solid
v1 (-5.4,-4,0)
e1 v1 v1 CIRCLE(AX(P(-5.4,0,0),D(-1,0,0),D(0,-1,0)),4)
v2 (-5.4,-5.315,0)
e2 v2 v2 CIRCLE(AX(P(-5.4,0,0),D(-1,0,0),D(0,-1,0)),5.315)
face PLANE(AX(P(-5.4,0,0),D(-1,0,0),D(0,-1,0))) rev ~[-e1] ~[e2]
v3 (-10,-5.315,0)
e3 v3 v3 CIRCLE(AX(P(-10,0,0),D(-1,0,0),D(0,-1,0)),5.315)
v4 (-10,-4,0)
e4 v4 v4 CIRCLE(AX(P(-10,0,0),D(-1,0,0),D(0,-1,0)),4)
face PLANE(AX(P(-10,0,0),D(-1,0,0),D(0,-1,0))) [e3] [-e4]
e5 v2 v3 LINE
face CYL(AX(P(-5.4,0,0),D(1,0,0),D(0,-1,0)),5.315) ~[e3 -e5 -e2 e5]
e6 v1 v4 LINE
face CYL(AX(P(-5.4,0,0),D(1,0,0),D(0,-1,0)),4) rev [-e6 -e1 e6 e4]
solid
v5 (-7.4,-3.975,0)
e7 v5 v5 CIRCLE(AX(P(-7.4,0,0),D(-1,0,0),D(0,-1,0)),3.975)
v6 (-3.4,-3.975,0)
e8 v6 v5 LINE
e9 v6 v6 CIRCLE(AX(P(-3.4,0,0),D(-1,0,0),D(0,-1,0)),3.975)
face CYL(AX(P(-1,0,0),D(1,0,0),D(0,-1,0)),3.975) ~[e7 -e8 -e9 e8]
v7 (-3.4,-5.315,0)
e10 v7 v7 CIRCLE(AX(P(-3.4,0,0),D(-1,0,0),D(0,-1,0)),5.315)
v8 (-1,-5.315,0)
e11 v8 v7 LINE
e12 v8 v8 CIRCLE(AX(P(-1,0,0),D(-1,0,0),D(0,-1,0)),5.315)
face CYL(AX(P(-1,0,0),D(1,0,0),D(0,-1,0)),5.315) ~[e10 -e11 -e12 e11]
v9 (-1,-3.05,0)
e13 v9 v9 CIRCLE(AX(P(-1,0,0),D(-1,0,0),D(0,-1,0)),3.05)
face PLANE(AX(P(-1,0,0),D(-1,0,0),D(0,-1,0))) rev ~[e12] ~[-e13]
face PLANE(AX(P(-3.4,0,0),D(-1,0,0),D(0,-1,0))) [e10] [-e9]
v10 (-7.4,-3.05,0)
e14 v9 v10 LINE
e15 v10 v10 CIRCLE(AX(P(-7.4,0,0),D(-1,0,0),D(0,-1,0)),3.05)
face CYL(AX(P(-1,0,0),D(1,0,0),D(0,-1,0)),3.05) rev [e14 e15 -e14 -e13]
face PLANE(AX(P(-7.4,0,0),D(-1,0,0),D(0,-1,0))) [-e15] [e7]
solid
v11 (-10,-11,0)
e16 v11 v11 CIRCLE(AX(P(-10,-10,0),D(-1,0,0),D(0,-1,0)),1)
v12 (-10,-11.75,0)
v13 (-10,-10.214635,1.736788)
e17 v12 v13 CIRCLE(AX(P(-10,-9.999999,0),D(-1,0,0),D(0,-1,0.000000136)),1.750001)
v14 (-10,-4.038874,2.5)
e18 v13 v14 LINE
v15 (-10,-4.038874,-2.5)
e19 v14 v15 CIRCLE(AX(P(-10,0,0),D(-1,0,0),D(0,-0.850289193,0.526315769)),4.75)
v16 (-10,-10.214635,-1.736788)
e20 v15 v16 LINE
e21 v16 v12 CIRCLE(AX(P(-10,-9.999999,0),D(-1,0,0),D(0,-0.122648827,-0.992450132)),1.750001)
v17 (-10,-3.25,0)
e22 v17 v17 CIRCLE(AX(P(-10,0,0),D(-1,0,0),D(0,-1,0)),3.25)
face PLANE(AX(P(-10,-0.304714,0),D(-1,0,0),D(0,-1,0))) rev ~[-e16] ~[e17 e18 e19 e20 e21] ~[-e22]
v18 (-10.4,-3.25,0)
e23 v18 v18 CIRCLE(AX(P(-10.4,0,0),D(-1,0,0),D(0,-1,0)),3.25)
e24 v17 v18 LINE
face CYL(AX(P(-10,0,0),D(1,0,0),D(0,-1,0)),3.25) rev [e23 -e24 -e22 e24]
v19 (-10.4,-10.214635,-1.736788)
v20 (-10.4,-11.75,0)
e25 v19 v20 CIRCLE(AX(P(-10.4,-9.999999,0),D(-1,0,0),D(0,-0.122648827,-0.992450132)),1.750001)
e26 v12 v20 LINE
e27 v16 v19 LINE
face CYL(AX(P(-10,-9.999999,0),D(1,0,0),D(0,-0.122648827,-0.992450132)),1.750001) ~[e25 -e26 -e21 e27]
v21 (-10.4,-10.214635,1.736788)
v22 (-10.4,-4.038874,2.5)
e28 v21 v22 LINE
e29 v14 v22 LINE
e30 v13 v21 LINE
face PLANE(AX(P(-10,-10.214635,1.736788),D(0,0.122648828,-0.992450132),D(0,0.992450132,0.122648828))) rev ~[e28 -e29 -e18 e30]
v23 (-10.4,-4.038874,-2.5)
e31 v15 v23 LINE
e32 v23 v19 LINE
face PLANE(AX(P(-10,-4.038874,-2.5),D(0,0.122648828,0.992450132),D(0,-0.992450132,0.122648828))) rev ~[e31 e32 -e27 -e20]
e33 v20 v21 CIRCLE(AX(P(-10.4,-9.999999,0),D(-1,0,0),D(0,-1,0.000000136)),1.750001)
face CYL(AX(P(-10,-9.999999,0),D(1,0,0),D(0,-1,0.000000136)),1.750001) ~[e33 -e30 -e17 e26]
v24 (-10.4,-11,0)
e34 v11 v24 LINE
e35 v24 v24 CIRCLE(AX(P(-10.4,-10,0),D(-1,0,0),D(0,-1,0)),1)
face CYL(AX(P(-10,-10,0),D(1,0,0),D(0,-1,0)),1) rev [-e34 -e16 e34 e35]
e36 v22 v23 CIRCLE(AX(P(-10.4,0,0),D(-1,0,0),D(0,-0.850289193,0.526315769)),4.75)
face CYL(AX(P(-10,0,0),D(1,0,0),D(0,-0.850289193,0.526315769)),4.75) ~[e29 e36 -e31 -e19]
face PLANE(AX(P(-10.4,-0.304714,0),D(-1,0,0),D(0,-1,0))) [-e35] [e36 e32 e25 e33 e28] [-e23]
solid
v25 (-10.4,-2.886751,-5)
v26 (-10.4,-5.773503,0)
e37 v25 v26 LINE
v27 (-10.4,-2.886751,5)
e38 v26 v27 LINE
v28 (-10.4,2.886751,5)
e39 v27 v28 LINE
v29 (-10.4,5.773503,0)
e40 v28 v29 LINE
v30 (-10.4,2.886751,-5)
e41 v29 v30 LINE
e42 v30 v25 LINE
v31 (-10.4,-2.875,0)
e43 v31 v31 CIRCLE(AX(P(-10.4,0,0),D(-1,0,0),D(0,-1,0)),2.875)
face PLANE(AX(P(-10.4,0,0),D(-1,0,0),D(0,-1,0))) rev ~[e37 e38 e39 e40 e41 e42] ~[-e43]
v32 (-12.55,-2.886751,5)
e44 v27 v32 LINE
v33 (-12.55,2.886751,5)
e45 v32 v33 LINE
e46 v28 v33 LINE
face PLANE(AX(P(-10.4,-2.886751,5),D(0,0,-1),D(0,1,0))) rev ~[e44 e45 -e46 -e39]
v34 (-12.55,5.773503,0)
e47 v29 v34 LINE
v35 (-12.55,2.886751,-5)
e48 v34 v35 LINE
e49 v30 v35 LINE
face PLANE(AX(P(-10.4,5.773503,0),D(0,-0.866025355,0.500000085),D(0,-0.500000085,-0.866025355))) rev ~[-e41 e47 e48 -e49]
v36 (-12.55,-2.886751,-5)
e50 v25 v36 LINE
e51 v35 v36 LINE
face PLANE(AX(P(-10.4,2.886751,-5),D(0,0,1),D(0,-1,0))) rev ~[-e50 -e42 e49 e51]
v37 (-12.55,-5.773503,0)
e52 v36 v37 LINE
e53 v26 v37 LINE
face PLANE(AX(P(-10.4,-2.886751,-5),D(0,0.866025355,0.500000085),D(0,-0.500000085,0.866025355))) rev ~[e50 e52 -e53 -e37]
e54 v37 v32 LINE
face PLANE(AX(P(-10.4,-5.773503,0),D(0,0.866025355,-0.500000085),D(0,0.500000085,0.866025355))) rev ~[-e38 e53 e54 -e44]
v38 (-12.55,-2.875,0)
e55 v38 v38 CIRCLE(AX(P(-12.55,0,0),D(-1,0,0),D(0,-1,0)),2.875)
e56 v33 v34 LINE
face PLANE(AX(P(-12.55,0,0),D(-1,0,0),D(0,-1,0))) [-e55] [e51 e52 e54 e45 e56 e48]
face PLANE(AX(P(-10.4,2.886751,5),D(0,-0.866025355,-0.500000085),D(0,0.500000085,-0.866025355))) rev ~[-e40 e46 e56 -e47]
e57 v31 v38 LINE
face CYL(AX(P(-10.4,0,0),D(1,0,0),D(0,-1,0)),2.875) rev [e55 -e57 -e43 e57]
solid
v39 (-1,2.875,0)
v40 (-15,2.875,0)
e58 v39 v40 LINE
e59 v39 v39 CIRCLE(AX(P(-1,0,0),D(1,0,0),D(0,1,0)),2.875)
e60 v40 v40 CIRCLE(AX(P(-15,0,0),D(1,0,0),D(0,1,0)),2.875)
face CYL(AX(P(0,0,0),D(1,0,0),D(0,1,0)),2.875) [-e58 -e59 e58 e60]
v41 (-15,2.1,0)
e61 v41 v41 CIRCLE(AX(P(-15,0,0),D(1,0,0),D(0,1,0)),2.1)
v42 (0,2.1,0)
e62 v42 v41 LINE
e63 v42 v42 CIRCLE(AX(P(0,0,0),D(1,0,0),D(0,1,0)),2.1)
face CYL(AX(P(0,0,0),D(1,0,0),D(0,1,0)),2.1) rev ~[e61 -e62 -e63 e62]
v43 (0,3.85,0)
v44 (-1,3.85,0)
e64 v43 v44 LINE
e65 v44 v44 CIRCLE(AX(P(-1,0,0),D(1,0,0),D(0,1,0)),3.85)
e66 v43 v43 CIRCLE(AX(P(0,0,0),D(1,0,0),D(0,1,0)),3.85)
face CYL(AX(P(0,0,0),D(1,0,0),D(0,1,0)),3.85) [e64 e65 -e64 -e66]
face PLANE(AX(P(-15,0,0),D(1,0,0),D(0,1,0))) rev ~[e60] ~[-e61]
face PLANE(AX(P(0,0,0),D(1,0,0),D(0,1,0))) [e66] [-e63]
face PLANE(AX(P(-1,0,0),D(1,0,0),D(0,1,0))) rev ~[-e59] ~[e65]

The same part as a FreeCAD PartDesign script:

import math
import FreeCAD as App
import Part
import Sketcher
Q = App.Units.Quantity

doc = App.newDocument("Part")
body = doc.addObject("PartDesign::Body", "Body")

# Sketch on YZ plane
sketch1 = body.newObject("Sketcher::SketchObject", "Sketch")
sketch1.AttachmentSupport = (doc.getObject("YZ_Plane"), [""])
sketch1.MapMode = "FlatFace"
sketch1.addGeometry([
    Part.Circle(App.Vector(0, 0, 0), App.Vector(0, 0, 1), 2.9),
    Part.Circle(App.Vector(0, 0, 0), App.Vector(0, 0, 1), 2.1),
], False)
sketch1.addConstraint([
    Sketcher.Constraint("Coincident", 0, 3, -1, 1),
    Sketcher.Constraint("Coincident", 1, 3, -1, 1),
    Sketcher.Constraint("Diameter", 1, Q("4.2 mm")),
    Sketcher.Constraint("Diameter", 0, Q("5.75 mm")),
])
pad1 = body.newObject("PartDesign::Pad", "Pad")
pad1.Profile = sketch1
pad1.Length = 15
pad1.Reversed = True

# Sketch on YZ plane
sketch2 = body.newObject("Sketcher::SketchObject", "Sketch001")
sketch2.AttachmentSupport = (doc.getObject("YZ_Plane"), [""])
sketch2.MapMode = "FlatFace"
sketch2.addGeometry([
    Part.Circle(App.Vector(0, 0, 0), App.Vector(0, 0, 1), 3.9),
    Part.Circle(App.Vector(0, 0, 0), App.Vector(0, 0, 1), 2.9),
], False)
sketch2.addConstraint([
    Sketcher.Constraint("Coincident", 0, 3, -1, 1),
    Sketcher.Constraint("Coincident", 1, 3, -1, 1),
    Sketcher.Constraint("Diameter", 0, Q("7.7 mm")),
    Sketcher.Constraint("Diameter", 1, Q("5.75 mm")),
])
pad2 = body.newObject("PartDesign::Pad", "Pad001")
pad2.Profile = sketch2
pad2.Length = 1
pad2.Reversed = True
body2 = doc.addObject("PartDesign::Body", "Body001")

# Sketch on YZ plane
sketch3 = body2.newObject("Sketcher::SketchObject", "Sketch002")
sketch3.AttachmentSupport = (doc.getObject("YZ_Plane001"), [""])
sketch3.MapMode = "FlatFace"
sketch3.AttachmentOffset = App.Placement(App.Vector(0, 0, -1), App.Rotation())
sketch3.addGeometry([
    Part.Circle(App.Vector(0, 0, 0), App.Vector(0, 0, 1), 4),
    Part.Circle(App.Vector(0, 0, 0), App.Vector(0, 0, 1), 3),
], False)
sketch3.addConstraint([
    Sketcher.Constraint("Coincident", 0, 3, -1, 1),
    Sketcher.Constraint("Coincident", 1, 3, -1, 1),
    Sketcher.Constraint("Diameter", 1, Q("6.1 mm")),
    Sketcher.Constraint("Diameter", 0, Q("7.95 mm")),
])
pad3 = body2.newObject("PartDesign::Pad", "Pad002")
pad3.Profile = sketch3
pad3.Length = 6.4
pad3.Reversed = True

# Sketch on YZ plane
sketch4 = body2.newObject("Sketcher::SketchObject", "Sketch003")
sketch4.AttachmentSupport = (doc.getObject("YZ_Plane001"), [""])
sketch4.MapMode = "FlatFace"
sketch4.AttachmentOffset = App.Placement(App.Vector(0, 0, -1), App.Rotation())
sketch4.addGeometry([
    Part.Circle(App.Vector(0, 0, 0), App.Vector(0, 0, 1), 5.3),
    Part.Circle(App.Vector(0, 0, 0), App.Vector(0, 0, 1), 4),
], False)
sketch4.addConstraint([
    Sketcher.Constraint("Coincident", 0, 3, -1, 1),
    Sketcher.Constraint("Coincident", 1, 3, -1, 1),
    Sketcher.Constraint("Diameter", 0, Q("10.63 mm")),
    Sketcher.Constraint("Diameter", 1, Q("7.95 mm")),
])
pad4 = body2.newObject("PartDesign::Pad", "Pad003")
pad4.Profile = sketch4
pad4.Length = 2.4
pad4.Reversed = True
body3 = doc.addObject("PartDesign::Body", "Body002")

# Sketch on YZ plane
sketch5 = body3.newObject("Sketcher::SketchObject", "Sketch004")
sketch5.AttachmentSupport = (doc.getObject("YZ_Plane002"), [""])
sketch5.MapMode = "FlatFace"
sketch5.AttachmentOffset = App.Placement(App.Vector(0, 0, -5.4), App.Rotation())
sketch5.addGeometry([
    Part.Circle(App.Vector(0, 0, 0), App.Vector(0, 0, 1), 5.3),
    Part.Circle(App.Vector(0, 0, 0), App.Vector(0, 0, 1), 4),
], False)
sketch5.addConstraint([
    Sketcher.Constraint("Coincident", 0, 3, -1, 1),
    Sketcher.Constraint("Coincident", 1, 3, -1, 1),
    Sketcher.Constraint("Diameter", 1, Q("8 mm")),
    Sketcher.Constraint("Diameter", 0, Q("10.63 mm")),
])
pad5 = body3.newObject("PartDesign::Pad", "Pad004")
pad5.Profile = sketch5
pad5.Length = 4.6
pad5.Reversed = True
body4 = doc.addObject("PartDesign::Body", "Body003")

# Sketch on YZ plane
sketch6 = body4.newObject("Sketcher::SketchObject", "Sketch005")
sketch6.AttachmentSupport = (doc.getObject("YZ_Plane003"), [""])
sketch6.MapMode = "FlatFace"
sketch6.AttachmentOffset = App.Placement(App.Vector(0, 0, -10), App.Rotation())
sketch6.addGeometry([
    Part.ArcOfCircle(Part.Circle(App.Vector(0, 0, 0), App.Vector(0, 0, 1), 4.8), math.radians(-148), math.radians(148)),  # 0
    Part.LineSegment(App.Vector(-4, -2.5, 0), App.Vector(-10.2, -1.7, 0)),  # 1
    Part.ArcOfCircle(Part.Circle(App.Vector(-10, 0, 0), App.Vector(0, 0, 1), 1.8), math.radians(-180), math.radians(-97)),  # 2
    Part.ArcOfCircle(Part.Circle(App.Vector(-10, 0, 0), App.Vector(0, 0, 1), 1.8), math.radians(97), math.radians(180)),  # 3
    Part.LineSegment(App.Vector(-10.2, 1.7, 0), App.Vector(-4, 2.5, 0)),  # 4
    Part.Circle(App.Vector(0, 0, 0), App.Vector(0, 0, 1), 3.2),  # 5
    Part.Circle(App.Vector(-10, 0, 0), App.Vector(0, 0, 1), 1),  # 6
], False)
sketch6.addConstraint([
    Sketcher.Constraint("Coincident", 0, 1, 1, 1),
    Sketcher.Constraint("Tangent", 1, 2, 2, 2),
    Sketcher.Constraint("Tangent", 2, 1, 3, 2),
    Sketcher.Constraint("Tangent", 3, 1, 4, 1),
    Sketcher.Constraint("Coincident", 4, 2, 0, 2),
    Sketcher.Constraint("Coincident", 0, 3, -1, 1),
    Sketcher.Constraint("Coincident", 5, 3, -1, 1),
    Sketcher.Constraint("Coincident", 6, 3, 2, 3),
    Sketcher.Constraint("Equal", 2, 3),
    Sketcher.Constraint("Symmetric", 1, 2, 3, 1, -1),
    Sketcher.Constraint("PointOnObject", 2, 1, -1),
    Sketcher.Constraint("Diameter", 6, Q("2 mm")),
    Sketcher.Constraint("Diameter", 5, Q("6.5 mm")),
    Sketcher.Constraint("Radius", 0, Q("4.75 mm")),
    Sketcher.Constraint("Radius", 2, Q("1.750001 mm")),
    Sketcher.Constraint("DistanceX", 2, 3, -1, 1, Q("9.999999 mm")),
    Sketcher.Constraint("DistanceY", 0, 1, 4, 2, Q("5 mm")),
])
pad6 = body4.newObject("PartDesign::Pad", "Pad005")
pad6.Profile = sketch6
pad6.Length = 0.4
pad6.Reversed = True
body5 = doc.addObject("PartDesign::Body", "Body004")

# Sketch on YZ plane
sketch7 = body5.newObject("Sketcher::SketchObject", "Sketch006")
sketch7.AttachmentSupport = (doc.getObject("YZ_Plane004"), [""])
sketch7.MapMode = "FlatFace"
sketch7.AttachmentOffset = App.Placement(App.Vector(0, 0, -10.4), App.Rotation())
sketch7.addGeometry([
    Part.LineSegment(App.Vector(-5.8, 0, 0), App.Vector(-2.9, 5, 0)),  # 0
    Part.LineSegment(App.Vector(-2.9, 5, 0), App.Vector(2.9, 5, 0)),  # 1
    Part.LineSegment(App.Vector(2.9, 5, 0), App.Vector(5.8, 0, 0)),  # 2
    Part.LineSegment(App.Vector(5.8, 0, 0), App.Vector(2.9, -5, 0)),  # 3
    Part.LineSegment(App.Vector(2.9, -5, 0), App.Vector(-2.9, -5, 0)),  # 4
    Part.LineSegment(App.Vector(-2.9, -5, 0), App.Vector(-5.8, 0, 0)),  # 5
    Part.Circle(App.Vector(0, 0, 0), App.Vector(0, 0, 1), 2.9),  # 6
], False)
sketch7.addConstraint([
    Sketcher.Constraint("Coincident", 0, 2, 1, 1),
    Sketcher.Constraint("Coincident", 1, 2, 2, 1),
    Sketcher.Constraint("Coincident", 2, 2, 3, 1),
    Sketcher.Constraint("Coincident", 3, 2, 4, 1),
    Sketcher.Constraint("Coincident", 4, 2, 5, 1),
    Sketcher.Constraint("Coincident", 5, 2, 0, 1),
    Sketcher.Constraint("Horizontal", 1),
    Sketcher.Constraint("Horizontal", 4),
    Sketcher.Constraint("Coincident", 6, 3, -1, 1),
    Sketcher.Constraint("Symmetric", 0, 2, 3, 2, -1, 1),
    Sketcher.Constraint("Symmetric", 2, 2, 5, 2, -1, 1),
    Sketcher.Constraint("PointOnObject", 2, 2, -1),
    Sketcher.Constraint("Parallel", 2, 5),
    Sketcher.Constraint("Vertical", 1, 2, 3, 2),
    Sketcher.Constraint("Diameter", 6, Q("5.75 mm")),
    Sketcher.Constraint("Angle", 0, Q("59.999994 deg")),
    Sketcher.Constraint("DistanceY", -1, 1, 0, 2, Q("5 mm")),
    Sketcher.Constraint("DistanceX", 1, 1, 1, 2, Q("5.773502 mm")),
])
pad7 = body5.newObject("PartDesign::Pad", "Pad006")
pad7.Profile = sketch7
pad7.Length = 2.15
pad7.Reversed = True

doc.recompute()
